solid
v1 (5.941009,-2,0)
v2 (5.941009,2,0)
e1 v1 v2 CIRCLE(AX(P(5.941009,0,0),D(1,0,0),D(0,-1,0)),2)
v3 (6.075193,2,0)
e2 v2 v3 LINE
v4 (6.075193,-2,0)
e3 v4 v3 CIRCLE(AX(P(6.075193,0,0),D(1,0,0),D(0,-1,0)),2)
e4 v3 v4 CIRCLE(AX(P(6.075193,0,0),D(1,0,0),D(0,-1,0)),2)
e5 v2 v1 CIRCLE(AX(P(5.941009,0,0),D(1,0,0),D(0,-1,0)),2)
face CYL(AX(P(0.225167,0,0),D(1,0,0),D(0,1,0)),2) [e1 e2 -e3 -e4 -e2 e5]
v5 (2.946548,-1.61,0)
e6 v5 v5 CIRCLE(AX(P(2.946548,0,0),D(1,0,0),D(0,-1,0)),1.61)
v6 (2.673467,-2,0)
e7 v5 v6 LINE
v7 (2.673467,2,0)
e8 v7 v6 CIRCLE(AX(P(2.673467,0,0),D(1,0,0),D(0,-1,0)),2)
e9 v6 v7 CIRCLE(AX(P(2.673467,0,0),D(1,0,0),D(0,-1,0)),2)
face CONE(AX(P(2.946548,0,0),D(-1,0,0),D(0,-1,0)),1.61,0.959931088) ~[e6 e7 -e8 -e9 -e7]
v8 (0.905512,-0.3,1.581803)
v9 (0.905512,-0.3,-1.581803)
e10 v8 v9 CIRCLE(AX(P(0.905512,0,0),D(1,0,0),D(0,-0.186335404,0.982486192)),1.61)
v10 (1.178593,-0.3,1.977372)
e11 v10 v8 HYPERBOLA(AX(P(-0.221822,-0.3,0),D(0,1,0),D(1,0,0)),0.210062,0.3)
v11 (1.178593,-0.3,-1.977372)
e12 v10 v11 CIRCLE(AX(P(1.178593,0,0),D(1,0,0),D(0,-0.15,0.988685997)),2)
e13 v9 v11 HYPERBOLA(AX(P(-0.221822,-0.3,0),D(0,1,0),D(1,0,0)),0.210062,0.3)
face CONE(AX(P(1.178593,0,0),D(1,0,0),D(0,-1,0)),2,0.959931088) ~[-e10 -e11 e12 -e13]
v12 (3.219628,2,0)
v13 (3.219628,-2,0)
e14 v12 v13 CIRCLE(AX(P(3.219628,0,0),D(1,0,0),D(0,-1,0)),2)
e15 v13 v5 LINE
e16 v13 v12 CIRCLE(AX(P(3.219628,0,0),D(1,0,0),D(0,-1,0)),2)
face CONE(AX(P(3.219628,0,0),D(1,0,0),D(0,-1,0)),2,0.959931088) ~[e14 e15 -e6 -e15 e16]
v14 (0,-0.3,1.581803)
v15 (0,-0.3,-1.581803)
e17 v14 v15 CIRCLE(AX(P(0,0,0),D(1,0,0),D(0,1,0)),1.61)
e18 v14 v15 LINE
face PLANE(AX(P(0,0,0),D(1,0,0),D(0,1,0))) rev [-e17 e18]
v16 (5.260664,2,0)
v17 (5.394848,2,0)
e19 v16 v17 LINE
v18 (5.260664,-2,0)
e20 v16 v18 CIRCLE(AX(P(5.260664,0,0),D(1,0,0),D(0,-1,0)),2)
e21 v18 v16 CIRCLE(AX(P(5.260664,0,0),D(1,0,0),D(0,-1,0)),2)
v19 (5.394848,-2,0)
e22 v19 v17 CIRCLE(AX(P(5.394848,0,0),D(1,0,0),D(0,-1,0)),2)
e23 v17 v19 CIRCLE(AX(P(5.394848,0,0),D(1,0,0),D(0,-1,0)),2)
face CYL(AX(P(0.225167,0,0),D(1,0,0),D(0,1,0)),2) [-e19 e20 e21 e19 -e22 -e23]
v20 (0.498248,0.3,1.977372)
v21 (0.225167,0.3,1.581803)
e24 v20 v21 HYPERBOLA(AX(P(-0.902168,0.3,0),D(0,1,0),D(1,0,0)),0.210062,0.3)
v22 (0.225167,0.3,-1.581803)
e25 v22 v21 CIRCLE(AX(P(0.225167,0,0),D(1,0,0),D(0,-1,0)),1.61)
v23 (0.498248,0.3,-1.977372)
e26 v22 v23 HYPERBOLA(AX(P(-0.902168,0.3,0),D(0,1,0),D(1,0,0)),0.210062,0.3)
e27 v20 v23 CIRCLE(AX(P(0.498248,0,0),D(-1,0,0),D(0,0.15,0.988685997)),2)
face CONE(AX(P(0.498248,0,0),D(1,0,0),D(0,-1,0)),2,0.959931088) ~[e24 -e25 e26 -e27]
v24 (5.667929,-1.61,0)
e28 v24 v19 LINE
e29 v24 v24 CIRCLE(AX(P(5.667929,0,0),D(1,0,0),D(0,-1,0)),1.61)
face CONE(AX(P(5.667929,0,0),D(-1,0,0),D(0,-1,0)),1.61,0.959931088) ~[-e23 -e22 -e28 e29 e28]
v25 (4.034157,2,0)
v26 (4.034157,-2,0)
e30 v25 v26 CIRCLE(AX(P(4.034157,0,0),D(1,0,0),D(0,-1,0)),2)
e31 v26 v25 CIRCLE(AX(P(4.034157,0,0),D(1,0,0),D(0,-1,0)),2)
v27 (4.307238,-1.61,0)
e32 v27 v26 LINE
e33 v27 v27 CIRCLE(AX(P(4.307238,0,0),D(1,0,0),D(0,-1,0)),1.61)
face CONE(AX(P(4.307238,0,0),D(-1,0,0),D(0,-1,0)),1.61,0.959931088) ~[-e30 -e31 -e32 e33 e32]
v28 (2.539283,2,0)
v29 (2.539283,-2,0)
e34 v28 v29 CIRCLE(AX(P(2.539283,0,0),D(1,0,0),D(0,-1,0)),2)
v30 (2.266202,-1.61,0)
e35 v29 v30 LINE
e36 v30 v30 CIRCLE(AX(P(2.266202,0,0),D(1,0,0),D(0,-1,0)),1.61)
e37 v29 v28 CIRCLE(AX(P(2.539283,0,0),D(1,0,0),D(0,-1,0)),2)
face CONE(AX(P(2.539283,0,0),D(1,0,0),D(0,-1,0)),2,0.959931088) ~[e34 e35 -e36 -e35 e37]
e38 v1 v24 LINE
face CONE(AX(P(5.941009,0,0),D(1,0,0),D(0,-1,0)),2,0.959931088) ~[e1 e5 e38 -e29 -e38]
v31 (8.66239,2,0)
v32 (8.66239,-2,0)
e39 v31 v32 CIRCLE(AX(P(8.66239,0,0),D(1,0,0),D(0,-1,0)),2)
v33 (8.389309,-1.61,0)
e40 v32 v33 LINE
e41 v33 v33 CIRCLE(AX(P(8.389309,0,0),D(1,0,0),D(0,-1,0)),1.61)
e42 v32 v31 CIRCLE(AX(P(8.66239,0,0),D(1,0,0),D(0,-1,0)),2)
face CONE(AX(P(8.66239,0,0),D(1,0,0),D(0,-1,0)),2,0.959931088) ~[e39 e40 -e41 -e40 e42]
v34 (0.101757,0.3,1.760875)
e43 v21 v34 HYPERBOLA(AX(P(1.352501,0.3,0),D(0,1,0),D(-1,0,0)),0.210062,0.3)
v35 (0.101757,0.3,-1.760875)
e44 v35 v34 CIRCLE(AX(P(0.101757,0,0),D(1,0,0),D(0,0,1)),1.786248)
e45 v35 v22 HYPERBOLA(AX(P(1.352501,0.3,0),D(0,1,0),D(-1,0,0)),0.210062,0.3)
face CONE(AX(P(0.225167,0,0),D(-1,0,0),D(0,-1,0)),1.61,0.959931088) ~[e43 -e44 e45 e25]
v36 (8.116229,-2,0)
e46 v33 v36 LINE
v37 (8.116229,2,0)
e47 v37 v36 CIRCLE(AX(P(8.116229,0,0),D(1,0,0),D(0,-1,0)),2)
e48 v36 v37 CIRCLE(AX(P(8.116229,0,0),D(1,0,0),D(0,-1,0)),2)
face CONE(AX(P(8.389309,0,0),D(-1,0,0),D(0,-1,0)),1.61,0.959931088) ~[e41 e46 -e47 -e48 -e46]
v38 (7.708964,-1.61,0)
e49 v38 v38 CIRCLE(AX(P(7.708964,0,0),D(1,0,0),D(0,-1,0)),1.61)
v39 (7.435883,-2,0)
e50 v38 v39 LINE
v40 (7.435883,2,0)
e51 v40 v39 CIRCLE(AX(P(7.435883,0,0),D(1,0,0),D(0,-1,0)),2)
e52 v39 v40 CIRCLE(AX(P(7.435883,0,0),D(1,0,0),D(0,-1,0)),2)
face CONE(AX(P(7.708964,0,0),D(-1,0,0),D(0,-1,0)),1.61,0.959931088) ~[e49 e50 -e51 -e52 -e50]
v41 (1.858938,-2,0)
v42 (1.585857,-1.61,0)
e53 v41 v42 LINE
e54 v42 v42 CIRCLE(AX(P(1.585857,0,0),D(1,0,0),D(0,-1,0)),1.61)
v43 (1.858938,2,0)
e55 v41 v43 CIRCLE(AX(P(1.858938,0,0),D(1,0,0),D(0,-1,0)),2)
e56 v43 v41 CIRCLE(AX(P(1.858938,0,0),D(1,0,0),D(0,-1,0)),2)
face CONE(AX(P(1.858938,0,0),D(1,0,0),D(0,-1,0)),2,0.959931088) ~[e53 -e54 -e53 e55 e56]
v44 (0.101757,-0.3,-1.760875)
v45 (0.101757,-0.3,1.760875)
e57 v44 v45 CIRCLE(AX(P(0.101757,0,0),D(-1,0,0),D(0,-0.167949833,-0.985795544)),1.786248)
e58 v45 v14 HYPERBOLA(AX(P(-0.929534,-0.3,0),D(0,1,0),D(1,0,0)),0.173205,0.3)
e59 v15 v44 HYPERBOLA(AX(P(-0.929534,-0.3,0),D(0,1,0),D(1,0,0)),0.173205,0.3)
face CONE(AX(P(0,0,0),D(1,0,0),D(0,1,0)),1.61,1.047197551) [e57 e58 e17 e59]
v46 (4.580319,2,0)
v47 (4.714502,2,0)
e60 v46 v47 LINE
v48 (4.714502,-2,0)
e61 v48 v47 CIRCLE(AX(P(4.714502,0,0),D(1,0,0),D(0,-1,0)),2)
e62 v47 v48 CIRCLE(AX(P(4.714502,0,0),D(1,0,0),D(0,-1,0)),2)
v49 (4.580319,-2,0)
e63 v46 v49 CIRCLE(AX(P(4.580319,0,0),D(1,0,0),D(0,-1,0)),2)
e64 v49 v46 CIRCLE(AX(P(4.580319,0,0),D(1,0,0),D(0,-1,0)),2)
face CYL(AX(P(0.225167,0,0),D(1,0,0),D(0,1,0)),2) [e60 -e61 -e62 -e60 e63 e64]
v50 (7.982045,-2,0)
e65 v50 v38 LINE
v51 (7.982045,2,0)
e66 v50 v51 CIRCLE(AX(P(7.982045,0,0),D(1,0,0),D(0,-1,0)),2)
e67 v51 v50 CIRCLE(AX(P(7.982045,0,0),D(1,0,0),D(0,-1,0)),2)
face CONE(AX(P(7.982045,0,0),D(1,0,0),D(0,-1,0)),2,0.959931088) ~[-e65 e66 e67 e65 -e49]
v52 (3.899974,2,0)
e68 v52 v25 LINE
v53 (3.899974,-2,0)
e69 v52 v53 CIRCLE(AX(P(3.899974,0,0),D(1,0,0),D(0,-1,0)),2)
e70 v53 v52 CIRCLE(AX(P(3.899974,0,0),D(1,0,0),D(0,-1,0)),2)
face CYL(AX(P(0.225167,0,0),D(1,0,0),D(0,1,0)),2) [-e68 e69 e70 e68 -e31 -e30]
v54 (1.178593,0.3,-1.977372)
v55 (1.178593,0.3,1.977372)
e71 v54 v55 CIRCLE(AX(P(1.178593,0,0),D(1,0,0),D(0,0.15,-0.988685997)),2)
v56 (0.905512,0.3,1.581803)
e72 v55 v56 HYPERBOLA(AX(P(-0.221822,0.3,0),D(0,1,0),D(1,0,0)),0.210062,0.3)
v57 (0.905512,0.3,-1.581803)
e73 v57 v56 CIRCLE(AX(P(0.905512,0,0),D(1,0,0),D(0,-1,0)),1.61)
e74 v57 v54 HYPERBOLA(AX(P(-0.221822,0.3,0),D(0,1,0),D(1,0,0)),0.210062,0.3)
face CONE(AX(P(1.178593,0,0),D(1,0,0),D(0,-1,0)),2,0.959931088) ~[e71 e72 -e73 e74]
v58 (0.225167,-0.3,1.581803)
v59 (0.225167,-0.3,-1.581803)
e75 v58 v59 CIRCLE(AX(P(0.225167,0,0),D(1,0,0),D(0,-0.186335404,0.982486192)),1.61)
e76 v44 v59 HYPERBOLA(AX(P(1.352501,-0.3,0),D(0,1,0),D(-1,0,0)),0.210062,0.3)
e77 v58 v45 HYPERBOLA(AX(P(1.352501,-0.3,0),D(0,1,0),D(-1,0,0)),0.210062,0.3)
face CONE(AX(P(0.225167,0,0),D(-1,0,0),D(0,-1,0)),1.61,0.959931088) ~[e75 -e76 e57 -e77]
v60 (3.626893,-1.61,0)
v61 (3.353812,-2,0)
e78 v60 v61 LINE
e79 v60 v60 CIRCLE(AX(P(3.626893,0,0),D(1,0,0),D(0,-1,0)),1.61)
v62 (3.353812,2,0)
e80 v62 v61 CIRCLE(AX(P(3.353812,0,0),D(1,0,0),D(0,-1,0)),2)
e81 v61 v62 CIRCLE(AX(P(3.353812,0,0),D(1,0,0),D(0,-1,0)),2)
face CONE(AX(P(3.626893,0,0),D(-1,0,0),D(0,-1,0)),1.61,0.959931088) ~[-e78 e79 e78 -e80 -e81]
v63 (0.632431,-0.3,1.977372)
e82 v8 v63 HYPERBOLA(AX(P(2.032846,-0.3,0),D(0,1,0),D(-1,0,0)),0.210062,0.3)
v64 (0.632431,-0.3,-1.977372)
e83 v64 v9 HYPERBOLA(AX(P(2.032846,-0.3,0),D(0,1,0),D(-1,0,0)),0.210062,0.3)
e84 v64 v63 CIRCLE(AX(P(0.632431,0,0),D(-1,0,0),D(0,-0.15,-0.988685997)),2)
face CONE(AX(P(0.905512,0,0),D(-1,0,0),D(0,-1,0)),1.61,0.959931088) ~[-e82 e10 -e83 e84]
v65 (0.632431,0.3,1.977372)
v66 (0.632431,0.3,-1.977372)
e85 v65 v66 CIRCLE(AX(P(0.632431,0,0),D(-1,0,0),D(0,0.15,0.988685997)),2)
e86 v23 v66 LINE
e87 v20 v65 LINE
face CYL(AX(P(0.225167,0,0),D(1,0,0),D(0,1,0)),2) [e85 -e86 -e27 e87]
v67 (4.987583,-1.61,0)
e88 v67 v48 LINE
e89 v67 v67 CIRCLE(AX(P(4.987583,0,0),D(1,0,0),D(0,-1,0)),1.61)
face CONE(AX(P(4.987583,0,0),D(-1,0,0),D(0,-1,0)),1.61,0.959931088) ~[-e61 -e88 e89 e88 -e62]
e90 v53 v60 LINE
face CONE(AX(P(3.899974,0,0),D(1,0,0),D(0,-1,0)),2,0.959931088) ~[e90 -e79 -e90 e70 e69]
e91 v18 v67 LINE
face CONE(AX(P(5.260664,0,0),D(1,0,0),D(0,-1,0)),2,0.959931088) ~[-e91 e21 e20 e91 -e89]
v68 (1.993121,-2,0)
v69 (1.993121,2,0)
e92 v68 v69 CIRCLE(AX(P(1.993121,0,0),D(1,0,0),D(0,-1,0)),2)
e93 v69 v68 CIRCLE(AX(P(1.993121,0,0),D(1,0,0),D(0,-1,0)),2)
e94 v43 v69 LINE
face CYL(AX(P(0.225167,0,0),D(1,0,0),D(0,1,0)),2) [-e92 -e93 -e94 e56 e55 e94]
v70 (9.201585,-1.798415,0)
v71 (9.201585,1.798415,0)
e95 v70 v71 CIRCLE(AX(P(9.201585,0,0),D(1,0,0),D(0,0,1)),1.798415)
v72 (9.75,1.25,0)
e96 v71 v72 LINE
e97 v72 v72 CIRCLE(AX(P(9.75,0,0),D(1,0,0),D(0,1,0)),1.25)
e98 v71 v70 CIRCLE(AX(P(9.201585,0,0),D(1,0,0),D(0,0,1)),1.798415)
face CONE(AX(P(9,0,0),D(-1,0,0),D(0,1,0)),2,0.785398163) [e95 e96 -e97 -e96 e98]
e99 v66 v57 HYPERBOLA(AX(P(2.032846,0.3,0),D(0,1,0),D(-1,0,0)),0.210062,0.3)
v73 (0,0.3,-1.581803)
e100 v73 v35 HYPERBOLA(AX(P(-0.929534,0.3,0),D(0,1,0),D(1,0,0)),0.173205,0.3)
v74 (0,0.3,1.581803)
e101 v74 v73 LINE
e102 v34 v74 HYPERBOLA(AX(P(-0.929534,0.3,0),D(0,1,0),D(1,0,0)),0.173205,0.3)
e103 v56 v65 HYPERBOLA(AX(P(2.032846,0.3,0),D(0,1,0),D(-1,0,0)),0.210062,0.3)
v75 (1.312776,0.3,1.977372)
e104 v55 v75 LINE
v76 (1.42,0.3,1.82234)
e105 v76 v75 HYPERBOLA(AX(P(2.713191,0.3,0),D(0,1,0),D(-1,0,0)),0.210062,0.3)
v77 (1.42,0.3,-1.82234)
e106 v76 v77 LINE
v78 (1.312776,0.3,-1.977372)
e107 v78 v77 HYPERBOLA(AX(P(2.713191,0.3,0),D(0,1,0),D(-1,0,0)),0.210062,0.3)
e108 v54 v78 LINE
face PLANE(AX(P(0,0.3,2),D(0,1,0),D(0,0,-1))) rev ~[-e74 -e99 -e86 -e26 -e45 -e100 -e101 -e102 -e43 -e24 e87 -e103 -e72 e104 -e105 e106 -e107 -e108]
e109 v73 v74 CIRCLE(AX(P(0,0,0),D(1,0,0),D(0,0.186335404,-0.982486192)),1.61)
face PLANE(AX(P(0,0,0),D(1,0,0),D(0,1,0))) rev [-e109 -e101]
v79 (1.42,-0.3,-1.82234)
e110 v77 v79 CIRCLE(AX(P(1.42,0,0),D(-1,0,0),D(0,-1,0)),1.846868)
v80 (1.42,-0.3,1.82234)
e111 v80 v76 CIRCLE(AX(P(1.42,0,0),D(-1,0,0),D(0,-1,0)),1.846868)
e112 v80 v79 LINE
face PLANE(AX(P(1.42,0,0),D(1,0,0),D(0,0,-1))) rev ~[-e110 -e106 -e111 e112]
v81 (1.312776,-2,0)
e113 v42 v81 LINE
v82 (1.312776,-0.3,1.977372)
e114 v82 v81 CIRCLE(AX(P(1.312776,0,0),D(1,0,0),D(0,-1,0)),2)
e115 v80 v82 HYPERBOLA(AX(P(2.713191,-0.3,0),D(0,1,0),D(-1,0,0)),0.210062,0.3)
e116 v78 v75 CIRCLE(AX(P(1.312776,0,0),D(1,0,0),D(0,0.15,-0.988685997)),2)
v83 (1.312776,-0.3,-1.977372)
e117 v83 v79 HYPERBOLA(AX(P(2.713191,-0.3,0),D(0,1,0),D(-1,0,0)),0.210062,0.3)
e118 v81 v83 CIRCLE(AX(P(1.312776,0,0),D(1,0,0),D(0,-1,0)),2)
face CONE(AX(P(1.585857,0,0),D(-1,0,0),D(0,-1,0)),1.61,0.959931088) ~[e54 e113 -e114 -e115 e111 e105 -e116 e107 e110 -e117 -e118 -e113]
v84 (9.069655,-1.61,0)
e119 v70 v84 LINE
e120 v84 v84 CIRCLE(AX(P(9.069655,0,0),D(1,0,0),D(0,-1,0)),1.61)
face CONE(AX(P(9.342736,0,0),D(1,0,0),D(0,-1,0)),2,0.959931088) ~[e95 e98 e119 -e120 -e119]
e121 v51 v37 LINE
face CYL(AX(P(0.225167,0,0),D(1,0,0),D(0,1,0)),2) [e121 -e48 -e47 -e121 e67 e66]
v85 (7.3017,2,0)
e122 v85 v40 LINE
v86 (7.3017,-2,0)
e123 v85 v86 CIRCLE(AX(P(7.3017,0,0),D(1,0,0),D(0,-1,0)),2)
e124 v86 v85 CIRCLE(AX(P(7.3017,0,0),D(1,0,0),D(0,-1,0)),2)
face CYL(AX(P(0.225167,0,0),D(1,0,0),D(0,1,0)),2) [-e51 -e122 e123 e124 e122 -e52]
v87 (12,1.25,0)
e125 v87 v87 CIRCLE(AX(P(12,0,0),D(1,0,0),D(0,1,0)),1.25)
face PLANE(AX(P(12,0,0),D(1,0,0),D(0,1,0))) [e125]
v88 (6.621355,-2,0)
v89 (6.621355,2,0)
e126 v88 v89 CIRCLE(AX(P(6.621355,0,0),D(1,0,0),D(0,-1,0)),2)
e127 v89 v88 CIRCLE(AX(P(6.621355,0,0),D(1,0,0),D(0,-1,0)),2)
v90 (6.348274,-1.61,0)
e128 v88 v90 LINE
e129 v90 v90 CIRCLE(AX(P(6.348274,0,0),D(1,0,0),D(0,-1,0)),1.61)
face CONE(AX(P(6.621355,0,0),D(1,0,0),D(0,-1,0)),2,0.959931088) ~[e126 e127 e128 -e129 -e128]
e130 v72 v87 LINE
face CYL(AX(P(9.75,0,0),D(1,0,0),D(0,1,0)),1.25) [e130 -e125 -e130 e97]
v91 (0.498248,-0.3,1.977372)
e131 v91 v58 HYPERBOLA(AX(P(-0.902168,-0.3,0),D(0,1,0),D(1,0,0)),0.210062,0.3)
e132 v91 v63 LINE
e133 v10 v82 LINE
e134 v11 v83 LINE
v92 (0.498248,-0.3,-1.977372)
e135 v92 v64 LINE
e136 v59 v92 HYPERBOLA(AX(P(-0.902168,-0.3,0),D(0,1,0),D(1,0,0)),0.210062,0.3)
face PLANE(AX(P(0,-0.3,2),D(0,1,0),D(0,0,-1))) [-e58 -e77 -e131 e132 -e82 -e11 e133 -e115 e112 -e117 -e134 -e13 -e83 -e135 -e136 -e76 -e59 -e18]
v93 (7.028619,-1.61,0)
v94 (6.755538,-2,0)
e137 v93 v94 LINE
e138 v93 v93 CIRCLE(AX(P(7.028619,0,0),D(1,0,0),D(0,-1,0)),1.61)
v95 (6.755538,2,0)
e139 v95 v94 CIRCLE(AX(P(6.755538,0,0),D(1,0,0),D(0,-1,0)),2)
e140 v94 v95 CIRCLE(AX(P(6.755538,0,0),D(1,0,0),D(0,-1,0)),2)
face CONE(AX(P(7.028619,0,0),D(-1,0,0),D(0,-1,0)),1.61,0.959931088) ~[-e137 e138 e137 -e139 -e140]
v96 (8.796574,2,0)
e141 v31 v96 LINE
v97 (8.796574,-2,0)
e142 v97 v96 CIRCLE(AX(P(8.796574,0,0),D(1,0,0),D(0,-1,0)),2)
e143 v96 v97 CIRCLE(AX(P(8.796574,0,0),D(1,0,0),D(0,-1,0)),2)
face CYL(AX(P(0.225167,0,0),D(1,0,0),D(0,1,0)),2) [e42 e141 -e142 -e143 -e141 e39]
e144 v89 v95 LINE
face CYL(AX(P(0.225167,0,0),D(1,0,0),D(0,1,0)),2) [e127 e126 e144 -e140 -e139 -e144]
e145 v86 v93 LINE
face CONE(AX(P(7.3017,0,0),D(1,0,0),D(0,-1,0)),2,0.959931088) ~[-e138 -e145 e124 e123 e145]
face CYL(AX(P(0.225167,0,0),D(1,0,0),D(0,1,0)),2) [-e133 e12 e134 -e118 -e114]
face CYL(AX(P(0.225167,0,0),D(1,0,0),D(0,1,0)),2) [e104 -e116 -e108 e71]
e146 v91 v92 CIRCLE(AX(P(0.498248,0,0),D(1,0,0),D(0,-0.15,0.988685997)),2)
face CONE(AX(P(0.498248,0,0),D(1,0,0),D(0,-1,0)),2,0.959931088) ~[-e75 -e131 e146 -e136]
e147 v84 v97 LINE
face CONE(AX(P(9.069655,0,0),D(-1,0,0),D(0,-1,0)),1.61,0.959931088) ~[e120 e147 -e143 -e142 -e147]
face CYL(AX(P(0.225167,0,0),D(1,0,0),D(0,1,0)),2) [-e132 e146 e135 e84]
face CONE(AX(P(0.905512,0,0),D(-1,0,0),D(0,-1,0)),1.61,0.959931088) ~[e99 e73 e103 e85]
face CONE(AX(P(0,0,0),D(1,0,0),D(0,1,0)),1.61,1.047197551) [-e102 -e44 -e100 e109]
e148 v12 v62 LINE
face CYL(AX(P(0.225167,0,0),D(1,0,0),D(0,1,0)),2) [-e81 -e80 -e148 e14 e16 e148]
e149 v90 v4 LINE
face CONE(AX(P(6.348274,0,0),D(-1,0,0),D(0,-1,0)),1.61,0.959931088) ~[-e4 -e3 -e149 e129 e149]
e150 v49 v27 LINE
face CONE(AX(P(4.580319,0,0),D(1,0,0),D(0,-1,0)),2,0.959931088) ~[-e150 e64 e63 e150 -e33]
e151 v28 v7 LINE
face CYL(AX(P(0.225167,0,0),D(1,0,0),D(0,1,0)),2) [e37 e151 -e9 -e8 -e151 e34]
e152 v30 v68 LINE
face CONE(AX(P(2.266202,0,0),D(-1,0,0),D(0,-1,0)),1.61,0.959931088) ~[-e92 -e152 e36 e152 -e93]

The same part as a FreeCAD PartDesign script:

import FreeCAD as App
import Part
import Sketcher

V = App.Vector
Q = App.Units.Quantity

doc = App.newDocument("Part")
body = doc.addObject("PartDesign::Body", "Body")

sketch1 = body.newObject("Sketcher::SketchObject", "Sketch")
sketch1.AttachmentSupport = (doc.getObject("XY_Plane"), [""])
sketch1.MapMode = "FlatFace"
sketch1.addGeometry(Part.LineSegment(V(12, 1.25, 0), V(9.75, 1.25, 0)), False)
sketch1.addGeometry(Part.LineSegment(V(9.75, 1.25, 0), V(9, 2, 0)), False)
sketch1.addGeometry(Part.LineSegment(V(9, 2, 0), V(0.23, 2, 0)), False)
sketch1.addGeometry(Part.LineSegment(V(0.23, 2, 0), V(0, 1.61, 0)), False)
sketch1.addGeometry(Part.LineSegment(V(0, 1.61, 0), V(0, 0, 0)), False)
sketch1.addGeometry(Part.LineSegment(V(0, 0, 0), V(12, 0, 0)), False)
sketch1.addGeometry(Part.LineSegment(V(12, 0, 0), V(12, 1.25, 0)), False)
sketch1.addConstraint(Sketcher.Constraint("Coincident", 0, 2, 1, 1))
sketch1.addConstraint(Sketcher.Constraint("Coincident", 1, 2, 2, 1))
sketch1.addConstraint(Sketcher.Constraint("Coincident", 2, 2, 3, 1))
sketch1.addConstraint(Sketcher.Constraint("Coincident", 3, 2, 4, 1))
sketch1.addConstraint(Sketcher.Constraint("Coincident", 4, 2, 5, 1))
sketch1.addConstraint(Sketcher.Constraint("Coincident", 5, 2, 6, 1))
sketch1.addConstraint(Sketcher.Constraint("Coincident", 6, 2, 0, 1))
sketch1.addConstraint(Sketcher.Constraint("Horizontal", 0))
sketch1.addConstraint(Sketcher.Constraint("Horizontal", 2))
sketch1.addConstraint(Sketcher.Constraint("Vertical", 4))
sketch1.addConstraint(Sketcher.Constraint("Horizontal", 5))
sketch1.addConstraint(Sketcher.Constraint("Vertical", 6))
sketch1.addConstraint(Sketcher.Constraint("Coincident", 4, 2, -1, 1))
sketch1.addConstraint(Sketcher.Constraint("DistanceX", 5, 1, 5, 2, Q("12 mm")))
sketch1.addConstraint(Sketcher.Constraint("Angle", 1, Q("135 deg")))
sketch1.addConstraint(Sketcher.Constraint("Angle", 3, Q("-120 deg")))
sketch1.addConstraint(Sketcher.Constraint("DistanceX", -1, 1, 1, 2, Q("9 mm")))
sketch1.addConstraint(Sketcher.Constraint("DistanceY", -1, 1, 1, 2, Q("2 mm")))
sketch1.addConstraint(Sketcher.Constraint("DistanceX", 0, 2, 0, 1, Q("2.25 mm")))
sketch1.addConstraint(Sketcher.Constraint("DistanceY", 4, 2, 4, 1, Q("1.61 mm")))
revolution = body.newObject("PartDesign::Revolution", "Revolution")
revolution.Profile = sketch1
revolution.ReferenceAxis = (sketch1, ["H_Axis"])
revolution.Angle = 360

sketch2 = body.newObject("Sketcher::SketchObject", "Sketch001")
sketch2.AttachmentSupport = (doc.getObject("YZ_Plane"), [""])
sketch2.MapMode = "FlatFace"
sketch2.addGeometry(Part.LineSegment(V(0.3, 2, 0), V(-0.3, 2, 0)), False)
sketch2.addGeometry(Part.LineSegment(V(-0.3, 2, 0), V(-0.3, -2, 0)), False)
sketch2.addGeometry(Part.LineSegment(V(-0.3, -2, 0), V(0.3, -2, 0)), False)
sketch2.addGeometry(Part.LineSegment(V(0.3, -2, 0), V(0.3, 2, 0)), False)
sketch2.addConstraint(Sketcher.Constraint("Coincident", 0, 2, 1, 1))
sketch2.addConstraint(Sketcher.Constraint("Coincident", 1, 2, 2, 1))
sketch2.addConstraint(Sketcher.Constraint("Coincident", 2, 2, 3, 1))
sketch2.addConstraint(Sketcher.Constraint("Coincident", 3, 2, 0, 1))
sketch2.addConstraint(Sketcher.Constraint("Horizontal", 0))
sketch2.addConstraint(Sketcher.Constraint("Vertical", 1))
sketch2.addConstraint(Sketcher.Constraint("Horizontal", 2))
sketch2.addConstraint(Sketcher.Constraint("Vertical", 3))
sketch2.addConstraint(Sketcher.Constraint("Symmetric", 0, 2, 2, 2, -1, 1))
sketch2.addConstraint(Sketcher.Constraint("DistanceY", 1, 2, 1, 1, Q("4 mm")))
sketch2.addConstraint(Sketcher.Constraint("DistanceX", 0, 2, 0, 1, Q("0.6 mm")))
pocket1 = body.newObject("PartDesign::Pocket", "Pocket")
pocket1.Profile = sketch2
pocket1.Length = 1.42
pocket1.Reversed = True

sketch3 = body.newObject("Sketcher::SketchObject", "Sketch002")
sketch3.AttachmentSupport = (doc.getObject("XY_Plane"), [""])
sketch3.MapMode = "FlatFace"
sketch3.addGeometry(Part.LineSegment(V(0.23, -1.61, 0), V(-0.05, -2, 0)), False)
sketch3.addGeometry(Part.LineSegment(V(-0.05, -2, 0), V(-0.05, -2.5, 0)), False)
sketch3.addGeometry(Part.LineSegment(V(-0.05, -2.5, 0), V(0.5, -2.5, 0)), False)
sketch3.addGeometry(Part.LineSegment(V(0.5, -2.5, 0), V(0.5, -2, 0)), False)
sketch3.addGeometry(Part.LineSegment(V(0.5, -2, 0), V(0.23, -1.61, 0)), False)
sketch3.addConstraint(Sketcher.Constraint("Coincident", 0, 2, 1, 1))
sketch3.addConstraint(Sketcher.Constraint("Coincident", 1, 2, 2, 1))
sketch3.addConstraint(Sketcher.Constraint("Coincident", 2, 2, 3, 1))
sketch3.addConstraint(Sketcher.Constraint("Coincident", 3, 2, 4, 1))
sketch3.addConstraint(Sketcher.Constraint("Coincident", 4, 2, 0, 1))
sketch3.addConstraint(Sketcher.Constraint("Vertical", 1))
sketch3.addConstraint(Sketcher.Constraint("Horizontal", 2))
sketch3.addConstraint(Sketcher.Constraint("Vertical", 3))
sketch3.addConstraint(Sketcher.Constraint("Horizontal", 0, 2, 3, 2))
sketch3.addConstraint(Sketcher.Constraint("Equal", 0, 4))
sketch3.addConstraint(Sketcher.Constraint("Angle", 0, Q("-125 deg")))
sketch3.addConstraint(Sketcher.Constraint("DistanceY", 1, 2, 1, 1, Q("0.5 mm")))
sketch3.addConstraint(Sketcher.Constraint("DistanceY", 0, 2, -1, 1, Q("2 mm")))
sketch3.addConstraint(Sketcher.Constraint("DistanceY", 4, 2, -1, 1, Q("1.61 mm")))
sketch3.addConstraint(Sketcher.Constraint("DistanceX", 0, 2, -1, 1, Q("0.047914 mm")))
groove = body.newObject("PartDesign::Groove", "Groove")
groove.Profile = sketch3
groove.ReferenceAxis = (sketch3, ["H_Axis"])
groove.Angle = 360
doc.recompute()

linearpattern = body.newObject("PartDesign::LinearPattern", "LinearPattern")
linearpattern.Originals = [groove]
linearpattern.Direction = (doc.getObject("X_Axis"), [""])
linearpattern.Mode = "offset"
linearpattern.Offset = 0.680345
linearpattern.Occurrences = 14
body.Tip = linearpattern

doc.recompute()
